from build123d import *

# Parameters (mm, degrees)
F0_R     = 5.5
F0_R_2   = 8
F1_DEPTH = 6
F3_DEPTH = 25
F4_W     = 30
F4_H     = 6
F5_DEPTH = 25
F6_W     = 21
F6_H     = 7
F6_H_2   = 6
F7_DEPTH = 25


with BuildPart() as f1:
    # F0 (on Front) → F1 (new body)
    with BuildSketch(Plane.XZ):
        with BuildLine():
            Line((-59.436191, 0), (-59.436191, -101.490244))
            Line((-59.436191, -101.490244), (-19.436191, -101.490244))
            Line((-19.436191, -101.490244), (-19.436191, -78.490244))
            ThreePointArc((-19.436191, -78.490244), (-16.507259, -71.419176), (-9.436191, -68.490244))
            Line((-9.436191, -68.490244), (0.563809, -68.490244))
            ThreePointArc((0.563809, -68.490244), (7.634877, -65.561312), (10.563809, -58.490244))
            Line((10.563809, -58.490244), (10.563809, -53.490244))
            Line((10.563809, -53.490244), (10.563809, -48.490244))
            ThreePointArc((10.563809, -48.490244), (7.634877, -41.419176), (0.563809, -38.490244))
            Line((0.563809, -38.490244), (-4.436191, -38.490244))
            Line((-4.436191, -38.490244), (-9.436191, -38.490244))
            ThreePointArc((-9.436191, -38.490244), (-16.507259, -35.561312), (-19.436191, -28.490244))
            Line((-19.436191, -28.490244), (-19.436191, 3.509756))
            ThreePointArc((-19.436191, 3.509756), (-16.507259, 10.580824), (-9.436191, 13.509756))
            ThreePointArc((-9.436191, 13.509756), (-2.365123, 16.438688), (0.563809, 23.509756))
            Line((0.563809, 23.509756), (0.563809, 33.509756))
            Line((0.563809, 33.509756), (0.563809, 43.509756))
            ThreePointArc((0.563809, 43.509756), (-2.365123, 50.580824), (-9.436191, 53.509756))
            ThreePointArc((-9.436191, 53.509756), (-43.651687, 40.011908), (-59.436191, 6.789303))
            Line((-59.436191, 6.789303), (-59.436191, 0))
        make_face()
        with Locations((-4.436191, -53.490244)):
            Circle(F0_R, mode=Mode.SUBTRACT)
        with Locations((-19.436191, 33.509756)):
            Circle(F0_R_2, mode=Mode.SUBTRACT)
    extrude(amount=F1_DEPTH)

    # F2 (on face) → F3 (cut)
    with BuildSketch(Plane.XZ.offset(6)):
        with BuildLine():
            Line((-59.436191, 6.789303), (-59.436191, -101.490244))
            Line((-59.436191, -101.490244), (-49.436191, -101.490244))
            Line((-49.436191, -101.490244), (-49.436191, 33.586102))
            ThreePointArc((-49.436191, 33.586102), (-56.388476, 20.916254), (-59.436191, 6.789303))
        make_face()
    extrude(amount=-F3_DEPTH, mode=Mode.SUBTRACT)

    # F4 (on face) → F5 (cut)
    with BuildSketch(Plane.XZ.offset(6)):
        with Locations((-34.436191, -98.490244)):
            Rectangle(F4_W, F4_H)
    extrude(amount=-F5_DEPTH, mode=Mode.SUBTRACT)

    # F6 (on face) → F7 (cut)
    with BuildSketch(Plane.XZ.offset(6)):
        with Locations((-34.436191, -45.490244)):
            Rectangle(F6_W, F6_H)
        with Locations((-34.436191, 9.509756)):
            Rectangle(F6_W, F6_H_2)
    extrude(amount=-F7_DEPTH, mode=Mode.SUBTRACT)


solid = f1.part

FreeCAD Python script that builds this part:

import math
import FreeCAD as App
import Part
import Sketcher

V = App.Vector


def add_polygon(sketch, points):
    """Adds a closed chain of lines whose ends are joined by coincident constraints."""
    first, n = sketch.GeometryCount, len(points)
    for a, b in zip(points, points[1:] + points[:1]):
        sketch.addGeometry(Part.LineSegment(App.Vector(*a, 0), App.Vector(*b, 0)), False)
    for i in range(n):
        sketch.addConstraint(Sketcher.Constraint("Coincident", first + i, 2, first + (i + 1) % n, 1))

doc = App.newDocument("Part")
params = doc.addObject("Spreadsheet::Sheet", "Params")
for row, (alias, value) in enumerate([
    ("sketch1_diameter", "11 mm"),
    ("sketch1_diameter2", "16 mm"),
    ("sketch1_radius", "9.999999 mm"),
    ("sketch1_radius2", "9.999999 mm"),
    ("sketch1_radius3", "9.999999 mm"),
    ("pad1_length", "6 mm"),
    ("sketch2_width", "10 mm"),
    ("pocket1_length", "25 mm"),
    ("sketch3_width", "30 mm"),
    ("sketch3_height", "6 mm"),
    ("pocket2_length", "25 mm"),
    ("sketch4_width", "21 mm"),
    ("sketch4_height", "7 mm"),
    ("sketch4_height2", "6 mm"),
    ("pocket3_length", "25 mm"),
], start=1):
    params.set(f"A{row}", alias)
    params.set(f"B{row}", "=" + value)
    params.setAlias(f"B{row}", alias)

body = doc.addObject("PartDesign::Body", "Body")

sketch1 = body.newObject("Sketcher::SketchObject", "Sketch")
sketch1.AttachmentSupport = (doc.getObject("XZ_Plane"), [""])
sketch1.MapMode = "FlatFace"
sketch1.addGeometry([
    Part.LineSegment(V(-59.436191, -101.490244, 0), V(-19.436191, -101.490244, 0)),
    Part.LineSegment(V(-19.436191, -101.490244, 0), V(-19.436191, -78.490244, 0)),
    Part.ArcOfCircle(Part.Circle(V(-9.436192, -78.490243, 0), V(0, 0, 1), 9.999999), math.radians(89.999996), math.radians(180.000004)),
    Part.LineSegment(V(-9.436191, -68.490244, 0), V(0.563809, -68.490244, 0)),
    Part.ArcOfCircle(Part.Circle(V(0.56381, -58.490245, 0), V(0, 0, 1), 9.999999), math.radians(-90.000004), math.radians(0.000004)),
    Part.LineSegment(V(10.563809, -58.490244, 0), V(10.563809, -48.490244, 0)),
    Part.ArcOfCircle(Part.Circle(V(0.56381, -48.490243, 0), V(0, 0, 1), 9.999999), math.radians(-0.000004), math.radians(90.000004)),
    Part.LineSegment(V(0.563809, -38.490244, 0), V(-9.436191, -38.490244, 0)),
    Part.ArcOfCircle(Part.Circle(V(-9.436192, -28.490245, 0), V(0, 0, 1), 9.999999), math.radians(179.999996), math.radians(270.000004)),
    Part.LineSegment(V(-19.436191, -28.490244, 0), V(-19.436191, 3.509756, 0)),
    Part.ArcOfCircle(Part.Circle(V(-9.436192, 3.509757, 0), V(0, 0, 1), 9.999999), math.radians(89.999996), math.radians(180.000004)),
    Part.ArcOfCircle(Part.Circle(V(-9.43619, 23.509755, 0), V(0, 0, 1), 9.999999), math.radians(-90.000004), math.radians(0.000004)),
    Part.LineSegment(V(0.563809, 23.509756, 0), V(0.563809, 43.509756, 0)),
    Part.ArcOfCircle(Part.Circle(V(-9.43619, 43.509757, 0), V(0, 0, 1), 9.999999), math.radians(-0.000004), math.radians(90.000004)),
    Part.ArcOfCircle(Part.Circle(V(-9.43619, 3.394651, 0), V(0, 0, 1), 50.115105), math.radians(90.000001), math.radians(176.115975)),
    Part.LineSegment(V(-59.436191, 6.789303, 0), V(-59.436191, -101.490244, 0)),
    Part.Circle(V(-4.436191, -53.490244, 0), V(0, 0, 1), 5.5),
    Part.Circle(V(-19.436191, 33.509756, 0), V(0, 0, 1), 8),
], False)
sketch1.addConstraint([
    Sketcher.Constraint("Coincident", 0, 2, 1, 1),
    Sketcher.Constraint("Coincident", 1, 2, 2, 2),
    Sketcher.Constraint("Coincident", 2, 1, 3, 1),
    Sketcher.Constraint("Coincident", 3, 2, 4, 1),
    Sketcher.Constraint("Coincident", 4, 2, 5, 1),
    Sketcher.Constraint("Coincident", 5, 2, 6, 1),
    Sketcher.Constraint("Coincident", 6, 2, 7, 1),
    Sketcher.Constraint("Coincident", 7, 2, 8, 2),
    Sketcher.Constraint("Coincident", 8, 1, 9, 1),
    Sketcher.Constraint("Coincident", 9, 2, 10, 2),
    Sketcher.Constraint("Coincident", 10, 1, 11, 1),
    Sketcher.Constraint("Coincident", 11, 2, 12, 1),
    Sketcher.Constraint("Coincident", 12, 2, 13, 1),
    Sketcher.Constraint("Coincident", 13, 2, 14, 1),
    Sketcher.Constraint("Coincident", 14, 2, 15, 1),
    Sketcher.Constraint("Coincident", 15, 2, 0, 1),
    Sketcher.Constraint("Horizontal", 0),
    Sketcher.Constraint("Vertical", 1),
    Sketcher.Constraint("Horizontal", 3),
    Sketcher.Constraint("Vertical", 5),
    Sketcher.Constraint("Horizontal", 7),
    Sketcher.Constraint("Vertical", 9),
    Sketcher.Constraint("Vertical", 12),
    Sketcher.Constraint("Vertical", 15),
    Sketcher.Constraint("Diameter", 16, 11.0),
    Sketcher.Constraint("Diameter", 17, 16.0),
    Sketcher.Constraint("Radius", 2, 9.999999),
    Sketcher.Constraint("Radius", 4, 9.999999),
    Sketcher.Constraint("Radius", 6, 9.999999),
    Sketcher.Constraint("Radius", 8, 9.999999),
    Sketcher.Constraint("Radius", 10, 9.999999),
    Sketcher.Constraint("Radius", 11, 9.999999),
    Sketcher.Constraint("Radius", 13, 9.999999),
    Sketcher.Constraint("DistanceX", 0, 1, 0, 2, 40.0),
    Sketcher.Constraint("DistanceX", 3, 1, 3, 2, 10.0),
    Sketcher.Constraint("DistanceX", 7, 2, 7, 1, 10.0),
    Sketcher.Constraint("DistanceY", 1, 1, 1, 2, 23.0),
    Sketcher.Constraint("DistanceY", 5, 1, 5, 2, 10.0),
    Sketcher.Constraint("DistanceY", 9, 1, 9, 2, 32.0),
    Sketcher.Constraint("DistanceY", 12, 1, 12, 2, 20.0),
    Sketcher.Constraint("DistanceX", 2, 3, 4, 3, 10.000001),
    Sketcher.Constraint("DistanceY", 4, 3, 6, 3, 10.000001),
    Sketcher.Constraint("DistanceX", 8, 3, 6, 3, 10.000001),
    Sketcher.Constraint("DistanceY", 8, 3, 10, 3, 32.000001),
    Sketcher.Constraint("DistanceX", 11, 3, 6, 3, 10.0),
    Sketcher.Constraint("DistanceY", 11, 3, 13, 3, 20.000001),
    Sketcher.Constraint("DistanceX", 14, 3, 6, 3, 9.999999),
    Sketcher.Constraint("DistanceX", 16, 3, 6, 3, 5.000001),
    Sketcher.Constraint("DistanceY", 16, 3, 6, 3, 5.000001),
    Sketcher.Constraint("DistanceX", 17, 3, 13, 3, 10.000001),
    Sketcher.Constraint("DistanceY", 17, 3, 13, 3, 10.000001),
    Sketcher.Constraint("DistanceY", 0, 2, 2, 3, 23.000001),
    Sketcher.Constraint("DistanceX", 1, 2, 2, 1, 10.0),
    Sketcher.Constraint("DistanceY", 3, 2, 4, 2, 10.0),
    Sketcher.Constraint("DistanceX", 6, 2, 5, 2, 10.0),
    Sketcher.Constraint("DistanceY", 7, 2, 8, 1, 10.0),
    Sketcher.Constraint("DistanceX", 9, 2, 10, 1, 10.0),
    Sketcher.Constraint("DistanceY", 10, 1, 11, 2, 10.0),
    Sketcher.Constraint("DistanceX", 13, 2, 12, 2, 10.0),
    Sketcher.Constraint("Radius", 14, 50.115105),
    Sketcher.Constraint("DistanceX", 2, 3, -1, 1, 9.436192),
    Sketcher.Constraint("DistanceY", -1, 1, 14, 3, 3.394651),
])
sketch1.setExpression("Constraints[24]", "Params.sketch1_diameter")
sketch1.setExpression("Constraints[25]", "Params.sketch1_diameter2")
sketch1.setExpression("Constraints[26]", "Params.sketch1_radius")
sketch1.setExpression("Constraints[27]", "Params.sketch1_radius2")
sketch1.setExpression("Constraints[28]", "Params.sketch1_radius3")
pad1 = body.newObject("PartDesign::Pad", "Pad")
pad1.Profile = sketch1
pad1.setExpression("Length", "Params.pad1_length")

sketch2 = body.newObject("Sketcher::SketchObject", "Sketch001")
sketch2.AttachmentSupport = (doc.getObject("XZ_Plane"), [""])
sketch2.MapMode = "FlatFace"
sketch2.AttachmentOffset = App.Placement(V(0, 0, 6), App.Rotation())
sketch2.addGeometry([
    Part.LineSegment(V(-59, 7, 0), V(-59, -101, 0)),
    Part.LineSegment(V(-59, -101, 0), V(-49, -101, 0)),
    Part.LineSegment(V(-49, -101, 0), V(-49, 34, 0)),
    Part.ArcOfCircle(Part.Circle(V(-9, 3, 0), V(0, 0, 1), 50), math.radians(143), math.radians(176)),
], False)
sketch2.addConstraint([
    Sketcher.Constraint("Coincident", 0, 2, 1, 1),
    Sketcher.Constraint("Coincident", 1, 2, 2, 1),
    Sketcher.Constraint("Coincident", 2, 2, 3, 1),
    Sketcher.Constraint("Coincident", 3, 2, 0, 1),
    Sketcher.Constraint("Vertical", 0),
    Sketcher.Constraint("Horizontal", 1),
    Sketcher.Constraint("Vertical", 2),
    Sketcher.Constraint("DistanceX", 1, 1, 1, 2, 10.0),
    Sketcher.Constraint("Radius", 3, 50.115116),
    Sketcher.Constraint("DistanceY", -1, 1, 2, 2, 33.586102),
    Sketcher.Constraint("DistanceY", 3, 2, 2, 2, 26.796799),
    Sketcher.Constraint("DistanceY", 0, 2, 0, 1, 108.279547),
    Sketcher.Constraint("DistanceX", 3, 3, -1, 1, 9.43618),
])
sketch2.setExpression("Constraints[7]", "Params.sketch2_width")
pocket1 = body.newObject("PartDesign::Pocket", "Pocket")
pocket1.Profile = sketch2
pocket1.setExpression("Length", "Params.pocket1_length")

sketch3 = body.newObject("Sketcher::SketchObject", "Sketch002")
sketch3.AttachmentSupport = (doc.getObject("XZ_Plane"), [""])
sketch3.MapMode = "FlatFace"
sketch3.AttachmentOffset = App.Placement(V(0, 0, 6), App.Rotation())
add_polygon(sketch3, [(-49, -95), (-49, -101), (-19, -101), (-19, -95)])
sketch3.addConstraint([
    Sketcher.Constraint("Vertical", 0),
    Sketcher.Constraint("Horizontal", 1),
    Sketcher.Constraint("Vertical", 2),
    Sketcher.Constraint("Horizontal", 3),
    Sketcher.Constraint("DistanceX", 1, 1, 1, 2, 30.0),
    Sketcher.Constraint("DistanceY", 0, 2, 0, 1, 6.0),
    Sketcher.Constraint("DistanceX", 0, 2, -1, 1, 49.436191),
    Sketcher.Constraint("DistanceY", 0, 2, -1, 1, 101.490244),
])
sketch3.setExpression("Constraints[8]", "Params.sketch3_width")
sketch3.setExpression("Constraints[9]", "Params.sketch3_height")
pocket2 = body.newObject("PartDesign::Pocket", "Pocket001")
pocket2.Profile = sketch3
pocket2.setExpression("Length", "Params.pocket2_length")

sketch4 = body.newObject("Sketcher::SketchObject", "Sketch003")
sketch4.AttachmentSupport = (doc.getObject("XZ_Plane"), [""])
sketch4.MapMode = "FlatFace"
sketch4.AttachmentOffset = App.Placement(V(0, 0, 6), App.Rotation())
add_polygon(sketch4, [(-45, -42), (-45, -49), (-24, -49), (-24, -42)])
add_polygon(sketch4, [(-45, 13), (-45, 7), (-24, 7), (-24, 13)])
sketch4.addConstraint([
    Sketcher.Constraint("Vertical", 0),
    Sketcher.Constraint("Horizontal", 1),
    Sketcher.Constraint("Vertical", 2),
    Sketcher.Constraint("Horizontal", 3),
    Sketcher.Constraint("Vertical", 4),
    Sketcher.Constraint("Horizontal", 5),
    Sketcher.Constraint("Vertical", 6),
    Sketcher.Constraint("Horizontal", 7),
    Sketcher.Constraint("Vertical", 3, 2, 4, 2),
    Sketcher.Constraint("Vertical", 2, 2, 5, 2),
    Sketcher.Constraint("DistanceX", 1, 1, 1, 2, 21.0),
    Sketcher.Constraint("DistanceY", 0, 2, 0, 1, 7.0),
    Sketcher.Constraint("DistanceY", 4, 2, 4, 1, 6.0),
    Sketcher.Constraint("DistanceY", 3, 2, 4, 2, 48.5),
    Sketcher.Constraint("DistanceX", 0, 2, -1, 1, 44.936191),
    Sketcher.Constraint("DistanceY", 0, 2, -1, 1, 48.990244),
])
sketch4.setExpression("Constraints[18]", "Params.sketch4_width")
sketch4.setExpression("Constraints[19]", "Params.sketch4_height")
sketch4.setExpression("Constraints[20]", "Params.sketch4_height2")
pocket3 = body.newObject("PartDesign::Pocket", "Pocket002")
pocket3.Profile = sketch4
pocket3.setExpression("Length", "Params.pocket3_length")

doc.recompute()
